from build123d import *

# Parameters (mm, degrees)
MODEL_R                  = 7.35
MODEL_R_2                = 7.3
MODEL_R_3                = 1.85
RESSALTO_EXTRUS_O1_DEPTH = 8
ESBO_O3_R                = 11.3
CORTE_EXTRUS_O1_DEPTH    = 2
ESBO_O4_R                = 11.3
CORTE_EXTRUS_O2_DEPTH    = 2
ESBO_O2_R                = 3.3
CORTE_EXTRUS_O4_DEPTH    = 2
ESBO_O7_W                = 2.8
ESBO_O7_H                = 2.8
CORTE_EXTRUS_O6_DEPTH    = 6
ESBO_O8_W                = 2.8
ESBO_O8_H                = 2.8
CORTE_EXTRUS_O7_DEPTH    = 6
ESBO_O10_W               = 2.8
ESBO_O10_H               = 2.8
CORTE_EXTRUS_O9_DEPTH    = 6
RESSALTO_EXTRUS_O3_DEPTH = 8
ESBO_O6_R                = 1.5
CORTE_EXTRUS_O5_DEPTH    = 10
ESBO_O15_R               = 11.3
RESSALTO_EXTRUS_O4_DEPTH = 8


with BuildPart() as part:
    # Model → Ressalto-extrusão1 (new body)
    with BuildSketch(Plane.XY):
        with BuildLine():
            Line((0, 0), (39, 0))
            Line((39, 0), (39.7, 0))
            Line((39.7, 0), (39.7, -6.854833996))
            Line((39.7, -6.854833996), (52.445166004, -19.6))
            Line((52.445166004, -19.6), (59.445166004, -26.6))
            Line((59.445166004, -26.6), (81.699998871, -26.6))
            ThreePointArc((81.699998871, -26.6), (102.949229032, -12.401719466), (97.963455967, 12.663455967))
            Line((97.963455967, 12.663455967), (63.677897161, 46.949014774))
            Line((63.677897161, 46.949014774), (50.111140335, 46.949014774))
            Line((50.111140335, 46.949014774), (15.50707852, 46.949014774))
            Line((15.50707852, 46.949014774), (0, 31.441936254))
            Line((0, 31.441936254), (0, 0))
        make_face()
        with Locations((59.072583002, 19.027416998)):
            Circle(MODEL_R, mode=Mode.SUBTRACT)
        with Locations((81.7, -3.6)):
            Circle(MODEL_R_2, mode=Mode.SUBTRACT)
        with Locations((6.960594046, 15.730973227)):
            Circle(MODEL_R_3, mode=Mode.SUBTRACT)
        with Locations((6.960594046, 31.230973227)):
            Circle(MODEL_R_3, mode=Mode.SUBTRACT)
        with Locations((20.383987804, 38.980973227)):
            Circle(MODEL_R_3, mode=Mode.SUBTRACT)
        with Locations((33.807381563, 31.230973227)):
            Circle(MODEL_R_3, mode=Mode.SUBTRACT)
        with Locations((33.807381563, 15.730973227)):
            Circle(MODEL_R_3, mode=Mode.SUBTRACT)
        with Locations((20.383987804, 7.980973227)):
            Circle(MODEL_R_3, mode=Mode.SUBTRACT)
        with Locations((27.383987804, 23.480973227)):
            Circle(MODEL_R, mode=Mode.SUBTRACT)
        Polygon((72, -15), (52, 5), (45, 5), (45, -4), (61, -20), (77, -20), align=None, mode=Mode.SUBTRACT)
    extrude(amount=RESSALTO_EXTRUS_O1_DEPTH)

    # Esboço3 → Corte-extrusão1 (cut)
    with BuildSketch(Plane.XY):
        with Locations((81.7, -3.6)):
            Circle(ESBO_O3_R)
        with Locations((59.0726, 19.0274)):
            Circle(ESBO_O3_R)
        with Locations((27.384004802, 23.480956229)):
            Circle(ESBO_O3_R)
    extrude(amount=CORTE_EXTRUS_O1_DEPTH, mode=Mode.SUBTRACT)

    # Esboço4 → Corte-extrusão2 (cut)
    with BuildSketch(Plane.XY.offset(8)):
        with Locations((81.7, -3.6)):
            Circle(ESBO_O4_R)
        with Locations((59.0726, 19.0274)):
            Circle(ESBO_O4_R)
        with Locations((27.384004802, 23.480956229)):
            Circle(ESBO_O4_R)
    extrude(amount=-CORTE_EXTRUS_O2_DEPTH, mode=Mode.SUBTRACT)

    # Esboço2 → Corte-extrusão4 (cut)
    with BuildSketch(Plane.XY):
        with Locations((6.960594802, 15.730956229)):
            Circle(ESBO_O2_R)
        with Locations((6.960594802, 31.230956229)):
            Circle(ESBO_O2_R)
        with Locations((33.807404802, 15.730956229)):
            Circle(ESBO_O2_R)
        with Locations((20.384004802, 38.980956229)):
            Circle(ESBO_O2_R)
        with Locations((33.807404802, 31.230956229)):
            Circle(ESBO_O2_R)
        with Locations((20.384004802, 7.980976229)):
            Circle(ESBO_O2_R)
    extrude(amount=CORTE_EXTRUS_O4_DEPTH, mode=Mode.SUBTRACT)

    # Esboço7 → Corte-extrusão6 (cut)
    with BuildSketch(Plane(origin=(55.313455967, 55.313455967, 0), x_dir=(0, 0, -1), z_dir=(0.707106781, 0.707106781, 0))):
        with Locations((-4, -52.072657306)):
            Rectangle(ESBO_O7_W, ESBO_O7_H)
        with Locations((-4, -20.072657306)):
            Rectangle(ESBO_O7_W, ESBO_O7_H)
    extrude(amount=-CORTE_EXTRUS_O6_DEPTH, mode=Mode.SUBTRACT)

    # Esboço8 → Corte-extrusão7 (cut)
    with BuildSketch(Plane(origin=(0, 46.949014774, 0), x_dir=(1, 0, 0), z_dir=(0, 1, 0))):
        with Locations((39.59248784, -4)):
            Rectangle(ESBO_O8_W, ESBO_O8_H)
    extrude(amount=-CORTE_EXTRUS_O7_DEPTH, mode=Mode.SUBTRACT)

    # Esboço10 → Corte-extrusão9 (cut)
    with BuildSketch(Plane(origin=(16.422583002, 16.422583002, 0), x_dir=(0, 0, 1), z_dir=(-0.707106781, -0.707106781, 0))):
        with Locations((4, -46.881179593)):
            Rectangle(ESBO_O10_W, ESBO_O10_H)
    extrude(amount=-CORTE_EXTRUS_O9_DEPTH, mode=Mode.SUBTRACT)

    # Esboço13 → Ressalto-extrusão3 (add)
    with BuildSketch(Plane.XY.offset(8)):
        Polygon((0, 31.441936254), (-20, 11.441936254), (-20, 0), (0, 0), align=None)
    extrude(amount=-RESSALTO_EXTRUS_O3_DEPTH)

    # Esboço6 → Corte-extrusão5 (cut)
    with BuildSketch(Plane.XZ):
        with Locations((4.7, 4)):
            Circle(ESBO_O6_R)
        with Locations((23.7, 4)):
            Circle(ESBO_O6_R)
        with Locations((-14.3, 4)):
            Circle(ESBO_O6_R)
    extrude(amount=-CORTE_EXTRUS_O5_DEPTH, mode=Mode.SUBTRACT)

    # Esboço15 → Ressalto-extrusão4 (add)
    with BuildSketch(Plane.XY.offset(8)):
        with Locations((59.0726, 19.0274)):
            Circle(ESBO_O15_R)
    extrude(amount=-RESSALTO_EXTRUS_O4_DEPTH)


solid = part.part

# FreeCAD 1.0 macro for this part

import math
import FreeCAD as App
import Part
import Sketcher

V = App.Vector
Q = App.Units.Quantity


def add_polygon(sketch, points):
    """Adds a closed chain of lines whose ends are joined by coincident constraints."""
    first, n = sketch.GeometryCount, len(points)
    for a, b in zip(points, points[1:] + points[:1]):
        sketch.addGeometry(Part.LineSegment(App.Vector(*a, 0), App.Vector(*b, 0)), False)
    for i in range(n):
        sketch.addConstraint(Sketcher.Constraint("Coincident", first + i, 2, first + (i + 1) % n, 1))

doc = App.newDocument("Part")
body = doc.addObject("PartDesign::Body", "Body")

sketch1 = body.newObject("Sketcher::SketchObject", "Sketch")
sketch1.AttachmentSupport = (doc.getObject("XY_Plane"), [""])
sketch1.MapMode = "FlatFace"
sketch1.addGeometry(Part.LineSegment(V(0, 0, 0), V(39.7, 0, 0)), False)
sketch1.addGeometry(Part.LineSegment(V(39.7, 0, 0), V(39.7, -6.9, 0)), False)
sketch1.addGeometry(Part.LineSegment(V(39.7, -6.9, 0), V(59.4, -26.6, 0)), False)
sketch1.addGeometry(Part.LineSegment(V(59.4, -26.6, 0), V(81.7, -26.6, 0)), False)
sketch1.addGeometry(Part.ArcOfCircle(Part.Circle(V(81.7, -3.6, 0), V(0, 0, 1), 23), math.radians(-90), math.radians(45)), False)
sketch1.addGeometry(Part.LineSegment(V(98, 12.7, 0), V(63.7, 46.9, 0)), False)
sketch1.addGeometry(Part.LineSegment(V(63.7, 46.9, 0), V(15.5, 46.9, 0)), False)
sketch1.addGeometry(Part.LineSegment(V(15.5, 46.9, 0), V(0, 31.4, 0)), False)
sketch1.addGeometry(Part.LineSegment(V(0, 31.4, 0), V(0, 0, 0)), False)
sketch1.addGeometry(Part.Circle(V(20.4, 8, 0), V(0, 0, 1), 1.9), False)
add_polygon(sketch1, [(52, 5), (77, -20), (61, -20), (45, -4), (45, 5)])
sketch1.addGeometry(Part.Circle(V(81.7, -3.6, 0), V(0, 0, 1), 7.3), False)
sketch1.addGeometry(Part.Circle(V(7, 15.7, 0), V(0, 0, 1), 1.9), False)
sketch1.addGeometry(Part.Circle(V(33.8, 15.7, 0), V(0, 0, 1), 1.9), False)
sketch1.addGeometry(Part.Circle(V(27.4, 23.5, 0), V(0, 0, 1), 7.3), False)
sketch1.addGeometry(Part.Circle(V(7, 31.2, 0), V(0, 0, 1), 1.9), False)
sketch1.addGeometry(Part.Circle(V(20.4, 39, 0), V(0, 0, 1), 1.9), False)
sketch1.addGeometry(Part.Circle(V(33.8, 31.2, 0), V(0, 0, 1), 1.9), False)
sketch1.addGeometry(Part.Circle(V(59.1, 19, 0), V(0, 0, 1), 7.3), False)
sketch1.addConstraint([
    Sketcher.Constraint("Coincident", 0, 2, 1, 1),
    Sketcher.Constraint("Coincident", 1, 2, 2, 1),
    Sketcher.Constraint("Coincident", 2, 2, 3, 1),
    Sketcher.Constraint("Tangent", 3, 2, 4, 1),
    Sketcher.Constraint("Tangent", 4, 2, 5, 1),
    Sketcher.Constraint("Coincident", 5, 2, 6, 1),
    Sketcher.Constraint("Coincident", 6, 2, 7, 1),
    Sketcher.Constraint("Coincident", 7, 2, 8, 1),
    Sketcher.Constraint("Coincident", 8, 2, 0, 1),
    Sketcher.Constraint("Horizontal", 0),
    Sketcher.Constraint("Vertical", 1),
    Sketcher.Constraint("Horizontal", 3),
    Sketcher.Constraint("Horizontal", 6),
    Sketcher.Constraint("Vertical", 8),
    Sketcher.Constraint("Horizontal", 11),
    Sketcher.Constraint("Vertical", 13),
    Sketcher.Constraint("Horizontal", 14),
    Sketcher.Constraint("Coincident", 8, 2, -1, 1),
    Sketcher.Constraint("Coincident", 15, 3, 4, 3),
    Sketcher.Constraint("Equal", 9, 16),
    Sketcher.Constraint("Equal", 16, 17),
    Sketcher.Constraint("Equal", 17, 19),
    Sketcher.Constraint("Equal", 19, 20),
    Sketcher.Constraint("Equal", 20, 21),
    Sketcher.Constraint("Equal", 18, 22),
    Sketcher.Constraint("Parallel", 2, 5),
    Sketcher.Constraint("Perpendicular", 5, 7),
    Sketcher.Constraint("Perpendicular", 7, 10),
    Sketcher.Constraint("Parallel", 10, 12),
    Sketcher.Constraint("Horizontal", 16, 3, 17, 3),
    Sketcher.Constraint("Horizontal", 19, 3, 21, 3),
    Sketcher.Constraint("Vertical", 16, 3, 19, 3),
    Sketcher.Constraint("Vertical", 9, 3, 20, 3),
    Sketcher.Constraint("Vertical", 17, 3, 21, 3),
    Sketcher.Constraint("Radius", 4, 23.0),
    Sketcher.Constraint("Diameter", 9, 3.7),
    Sketcher.Constraint("Diameter", 15, 14.6),
    Sketcher.Constraint("Diameter", 18, 14.7),
    Sketcher.Constraint("DistanceX", 11, 2, 11, 1, 16.0),
    Sketcher.Constraint("DistanceX", 14, 1, 14, 2, 7.0),
    Sketcher.Constraint("DistanceY", 13, 1, 13, 2, 9.0),
    Sketcher.Constraint("DistanceX", 0, 1, 0, 2, 39.7),
    Sketcher.Constraint("DistanceX", -1, 1, 10, 2, 77.0),
    Sketcher.Constraint("DistanceY", 10, 2, -1, 1, 20.0),
    Sketcher.Constraint("DistanceX", -1, 1, 12, 2, 45.0),
    Sketcher.Constraint("DistanceX", 9, 3, 18, 3, 7.0),
    Sketcher.Constraint("DistanceY", 9, 3, 20, 3, 31.0),
    Sketcher.Constraint("DistanceX", 1, 2, 3, 2, 41.999999),
    Sketcher.Constraint("DistanceY", 4, 3, -1, 1, 3.6),
    Sketcher.Constraint("DistanceY", 9, 3, 18, 3, 15.5),
    Sketcher.Constraint("DistanceY", 16, 3, 19, 3, 15.5),
    Sketcher.Constraint("DistanceY", 9, 3, 16, 3, 7.75),
    Sketcher.Constraint("DistanceX", 6, 2, 6, 1, 48.170819),
    Sketcher.Constraint("DistanceX", 17, 3, 22, 3, 25.265201),
    Sketcher.Constraint("Distance", 2, 27.923882),
    Sketcher.Constraint("Distance", 7, 21.930321),
    Sketcher.Constraint("DistanceX", -1, 1, 17, 3, 33.807382),
    Sketcher.Constraint("DistanceY", 1, 2, 22, 3, 25.882251),
    Sketcher.Constraint("DistanceY", 21, 3, 5, 2, 15.718042),
    Sketcher.Constraint("DistanceX", 18, 3, 5, 2, 36.293909),
    Sketcher.Constraint("DistanceX", -1, 1, 16, 3, 6.960594),
])
pad1 = body.newObject("PartDesign::Pad", "Pad")
pad1.Profile = sketch1
pad1.Length = 8

sketch2 = body.newObject("Sketcher::SketchObject", "Sketch001")
sketch2.AttachmentSupport = (doc.getObject("XY_Plane"), [""])
sketch2.MapMode = "FlatFace"
sketch2.addGeometry([
    Part.Circle(V(82, -4, 0), V(0, 0, 1), 11),
    Part.Circle(V(59, 19, 0), V(0, 0, 1), 11),
    Part.Circle(V(27, 23, 0), V(0, 0, 1), 11),
], False)
sketch2.addConstraint([
    Sketcher.Constraint("Equal", 0, 1),
    Sketcher.Constraint("Equal", 1, 2),
    Sketcher.Constraint("Diameter", 0, 22.6),
    Sketcher.Constraint("DistanceX", -1, 1, 0, 3, 81.7),
    Sketcher.Constraint("DistanceY", 0, 3, -1, 1, 3.6),
    Sketcher.Constraint("DistanceX", -1, 1, 1, 3, 59.0726),
    Sketcher.Constraint("DistanceY", -1, 1, 1, 3, 19.0274),
    Sketcher.Constraint("DistanceX", -1, 1, 2, 3, 27.384005),
    Sketcher.Constraint("DistanceY", -1, 1, 2, 3, 23.480956),
])
pocket1 = body.newObject("PartDesign::Pocket", "Pocket")
pocket1.Profile = sketch2
pocket1.Length = 2
pocket1.Reversed = True

sketch3 = body.newObject("Sketcher::SketchObject", "Sketch002")
sketch3.AttachmentSupport = (doc.getObject("XY_Plane"), [""])
sketch3.MapMode = "FlatFace"
sketch3.AttachmentOffset = App.Placement(V(0, 0, 8), App.Rotation())
sketch3.addGeometry([
    Part.Circle(V(82, -4, 0), V(0, 0, 1), 11),
    Part.Circle(V(59, 19, 0), V(0, 0, 1), 11),
    Part.Circle(V(27, 23, 0), V(0, 0, 1), 11),
], False)
sketch3.addConstraint([
    Sketcher.Constraint("Equal", 0, 1),
    Sketcher.Constraint("Equal", 1, 2),
    Sketcher.Constraint("Diameter", 0, 22.6),
    Sketcher.Constraint("DistanceX", -1, 1, 0, 3, 81.7),
    Sketcher.Constraint("DistanceY", 0, 3, -1, 1, 3.6),
    Sketcher.Constraint("DistanceX", -1, 1, 1, 3, 59.0726),
    Sketcher.Constraint("DistanceY", -1, 1, 1, 3, 19.0274),
    Sketcher.Constraint("DistanceX", -1, 1, 2, 3, 27.384005),
    Sketcher.Constraint("DistanceY", -1, 1, 2, 3, 23.480956),
])
pocket2 = body.newObject("PartDesign::Pocket", "Pocket001")
pocket2.Profile = sketch3
pocket2.Length = 2

sketch4 = body.newObject("Sketcher::SketchObject", "Sketch003")
sketch4.AttachmentSupport = (doc.getObject("XY_Plane"), [""])
sketch4.MapMode = "FlatFace"
sketch4.addGeometry([
    Part.Circle(V(7, 15.7, 0), V(0, 0, 1), 3.3),
    Part.Circle(V(7, 31.2, 0), V(0, 0, 1), 3.3),
    Part.Circle(V(33.8, 15.7, 0), V(0, 0, 1), 3.3),
    Part.Circle(V(20.4, 39, 0), V(0, 0, 1), 3.3),
    Part.Circle(V(33.8, 31.2, 0), V(0, 0, 1), 3.3),
    Part.Circle(V(20.4, 8, 0), V(0, 0, 1), 3.3),
], False)
sketch4.addConstraint([
    Sketcher.Constraint("Equal", 0, 1),
    Sketcher.Constraint("Equal", 1, 2),
    Sketcher.Constraint("Equal", 2, 3),
    Sketcher.Constraint("Equal", 3, 4),
    Sketcher.Constraint("Equal", 4, 5),
    Sketcher.Constraint("Horizontal", 0, 3, 2, 3),
    Sketcher.Constraint("Horizontal", 1, 3, 4, 3),
    Sketcher.Constraint("Vertical", 0, 3, 1, 3),
    Sketcher.Constraint("Vertical", 2, 3, 4, 3),
    Sketcher.Constraint("Vertical", 3, 3, 5, 3),
    Sketcher.Constraint("Diameter", 0, 6.6),
    Sketcher.Constraint("DistanceY", 0, 3, 1, 3, 15.5),
    Sketcher.Constraint("DistanceY", 1, 3, 3, 3, 7.75),
    Sketcher.Constraint("DistanceX", 3, 3, 2, 3, 13.4234),
    Sketcher.Constraint("DistanceX", 0, 3, 2, 3, 26.84681),
    Sketcher.Constraint("DistanceY", 5, 3, 2, 3, 7.74998),
    Sketcher.Constraint("DistanceX", -1, 1, 0, 3, 6.960595),
    Sketcher.Constraint("DistanceY", -1, 1, 0, 3, 15.730956),
])
pocket3 = body.newObject("PartDesign::Pocket", "Pocket002")
pocket3.Profile = sketch4
pocket3.Length = 2
pocket3.Reversed = True

sketch5 = body.newObject("Sketcher::SketchObject", "Sketch004")
sketch5.Placement = App.Placement(V(55.313456, 55.313456, 0), App.Rotation(V(0, 0, -1), V(-0.707106781, 0.707106781, 0), V(0.707106781, 0.707106781, 0), "ZXY"))
add_polygon(sketch5, [(-5.4, -50.7), (-5.4, -53.5), (-2.6, -53.5), (-2.6, -50.7)])
add_polygon(sketch5, [(-5.4, -18.7), (-5.4, -21.5), (-2.6, -21.5), (-2.6, -18.7)])
sketch5.addConstraint([
    Sketcher.Constraint("Vertical", 0),
    Sketcher.Constraint("Horizontal", 1),
    Sketcher.Constraint("Vertical", 2),
    Sketcher.Constraint("Horizontal", 3),
    Sketcher.Constraint("Vertical", 4),
    Sketcher.Constraint("Horizontal", 5),
    Sketcher.Constraint("Vertical", 6),
    Sketcher.Constraint("Horizontal", 7),
    Sketcher.Constraint("Vertical", 3, 2, 4, 2),
    Sketcher.Constraint("Vertical", 2, 2, 5, 2),
    Sketcher.Constraint("Equal", 7, 0),
    Sketcher.Constraint("Equal", 2, 4),
    Sketcher.Constraint("DistanceX", 1, 1, 1, 2, 2.8),
    Sketcher.Constraint("DistanceY", 0, 2, 4, 2, 32.0),
    Sketcher.Constraint("DistanceX", 0, 2, -1, 1, 5.4),
    Sketcher.Constraint("DistanceY", 0, 2, -1, 1, 53.472657),
])
pocket4 = body.newObject("PartDesign::Pocket", "Pocket003")
pocket4.Profile = sketch5
pocket4.Length = 6

sketch6 = body.newObject("Sketcher::SketchObject", "Sketch005")
sketch6.AttachmentSupport = (doc.getObject("XZ_Plane"), [""])
sketch6.MapMode = "FlatFace"
sketch6.AttachmentOffset = App.Placement(V(0, 0, -46.949015), App.Rotation())
add_polygon(sketch6, [(38.2, 2.6), (38.2, 5.4), (41, 5.4), (41, 2.6)])
sketch6.addConstraint([
    Sketcher.Constraint("Vertical", 0),
    Sketcher.Constraint("Horizontal", 1),
    Sketcher.Constraint("Vertical", 2),
    Sketcher.Constraint("Horizontal", 3),
    Sketcher.Constraint("Equal", 3, 0),
    Sketcher.Constraint("DistanceX", 1, 1, 1, 2, 2.8),
    Sketcher.Constraint("DistanceY", -1, 1, 0, 2, 5.4),
    Sketcher.Constraint("DistanceX", -1, 1, 0, 2, 38.192488),
])
pocket5 = body.newObject("PartDesign::Pocket", "Pocket004")
pocket5.Profile = sketch6
pocket5.Length = 6
pocket5.Reversed = True

sketch7 = body.newObject("Sketcher::SketchObject", "Sketch006")
sketch7.Placement = App.Placement(V(16.422583, 16.422583, 0), App.Rotation(V(0, 0, 1), V(-0.707106781, 0.707106781, 0), V(-0.707106781, -0.707106781, 0), "ZXY"))
add_polygon(sketch7, [(2.6, -45.5), (2.6, -48.3), (5.4, -48.3), (5.4, -45.5)])
sketch7.addConstraint([
    Sketcher.Constraint("Vertical", 0),
    Sketcher.Constraint("Horizontal", 1),
    Sketcher.Constraint("Vertical", 2),
    Sketcher.Constraint("Horizontal", 3),
    Sketcher.Constraint("Equal", 3, 0),
    Sketcher.Constraint("DistanceX", 1, 1, 1, 2, 2.8),
    Sketcher.Constraint("DistanceX", -1, 1, 0, 2, 2.6),
    Sketcher.Constraint("DistanceY", 0, 2, -1, 1, 48.28118),
])
pocket6 = body.newObject("PartDesign::Pocket", "Pocket005")
pocket6.Profile = sketch7
pocket6.Length = 6

sketch8 = body.newObject("Sketcher::SketchObject", "Sketch007")
sketch8.AttachmentSupport = (doc.getObject("XY_Plane"), [""])
sketch8.MapMode = "FlatFace"
sketch8.AttachmentOffset = App.Placement(V(0, 0, 8), App.Rotation())
add_polygon(sketch8, [(0, 31), (-20, 11), (-20, 0), (0, 0)])
sketch8.addConstraint([
    Sketcher.Constraint("Vertical", 1),
    Sketcher.Constraint("Horizontal", 2),
    Sketcher.Constraint("Vertical", 3),
    Sketcher.Constraint("Coincident", 2, 2, -1, 1),
    Sketcher.Constraint("DistanceX", 2, 1, 2, 2, 20.0),
    Sketcher.Constraint("Angle", 0, Q("-135 deg")),
    Sketcher.Constraint("DistanceY", 1, 2, 1, 1, 11.441936),
])
pad2 = body.newObject("PartDesign::Pad", "Pad001")
pad2.Profile = sketch8
pad2.Length = 8
pad2.Reversed = True

sketch9 = body.newObject("Sketcher::SketchObject", "Sketch008")
sketch9.AttachmentSupport = (doc.getObject("XZ_Plane"), [""])
sketch9.MapMode = "FlatFace"
sketch9.addGeometry([
    Part.Circle(V(4.7, 4, 0), V(0, 0, 1), 1.5),
    Part.Circle(V(23.7, 4, 0), V(0, 0, 1), 1.5),
    Part.Circle(V(-14.3, 4, 0), V(0, 0, 1), 1.5),
], False)
sketch9.addConstraint([
    Sketcher.Constraint("Equal", 0, 1),
    Sketcher.Constraint("Equal", 1, 2),
    Sketcher.Constraint("Horizontal", 0, 3, 1, 3),
    Sketcher.Constraint("Horizontal", 1, 3, 2, 3),
    Sketcher.Constraint("Diameter", 0, 3.0),
    Sketcher.Constraint("DistanceY", -1, 1, 0, 3, 4.0),
    Sketcher.Constraint("DistanceX", 0, 3, 1, 3, 19.0),
    Sketcher.Constraint("DistanceX", 2, 3, 0, 3, 19.0),
    Sketcher.Constraint("DistanceX", -1, 1, 0, 3, 4.7),
])
pocket7 = body.newObject("PartDesign::Pocket", "Pocket006")
pocket7.Profile = sketch9
pocket7.Length = 10

sketch10 = body.newObject("Sketcher::SketchObject", "Sketch009")
sketch10.AttachmentSupport = (doc.getObject("XY_Plane"), [""])
sketch10.MapMode = "FlatFace"
sketch10.AttachmentOffset = App.Placement(V(0, 0, 8), App.Rotation())
sketch10.addGeometry(Part.Circle(V(59, 19, 0), V(0, 0, 1), 11), False)
sketch10.addConstraint([
    Sketcher.Constraint("Diameter", 0, 22.6),
    Sketcher.Constraint("DistanceX", -1, 1, 0, 3, 59.0726),
    Sketcher.Constraint("DistanceY", -1, 1, 0, 3, 19.0274),
])
pad3 = body.newObject("PartDesign::Pad", "Pad002")
pad3.Profile = sketch10
pad3.Length = 8
pad3.Reversed = True

doc.recompute()
